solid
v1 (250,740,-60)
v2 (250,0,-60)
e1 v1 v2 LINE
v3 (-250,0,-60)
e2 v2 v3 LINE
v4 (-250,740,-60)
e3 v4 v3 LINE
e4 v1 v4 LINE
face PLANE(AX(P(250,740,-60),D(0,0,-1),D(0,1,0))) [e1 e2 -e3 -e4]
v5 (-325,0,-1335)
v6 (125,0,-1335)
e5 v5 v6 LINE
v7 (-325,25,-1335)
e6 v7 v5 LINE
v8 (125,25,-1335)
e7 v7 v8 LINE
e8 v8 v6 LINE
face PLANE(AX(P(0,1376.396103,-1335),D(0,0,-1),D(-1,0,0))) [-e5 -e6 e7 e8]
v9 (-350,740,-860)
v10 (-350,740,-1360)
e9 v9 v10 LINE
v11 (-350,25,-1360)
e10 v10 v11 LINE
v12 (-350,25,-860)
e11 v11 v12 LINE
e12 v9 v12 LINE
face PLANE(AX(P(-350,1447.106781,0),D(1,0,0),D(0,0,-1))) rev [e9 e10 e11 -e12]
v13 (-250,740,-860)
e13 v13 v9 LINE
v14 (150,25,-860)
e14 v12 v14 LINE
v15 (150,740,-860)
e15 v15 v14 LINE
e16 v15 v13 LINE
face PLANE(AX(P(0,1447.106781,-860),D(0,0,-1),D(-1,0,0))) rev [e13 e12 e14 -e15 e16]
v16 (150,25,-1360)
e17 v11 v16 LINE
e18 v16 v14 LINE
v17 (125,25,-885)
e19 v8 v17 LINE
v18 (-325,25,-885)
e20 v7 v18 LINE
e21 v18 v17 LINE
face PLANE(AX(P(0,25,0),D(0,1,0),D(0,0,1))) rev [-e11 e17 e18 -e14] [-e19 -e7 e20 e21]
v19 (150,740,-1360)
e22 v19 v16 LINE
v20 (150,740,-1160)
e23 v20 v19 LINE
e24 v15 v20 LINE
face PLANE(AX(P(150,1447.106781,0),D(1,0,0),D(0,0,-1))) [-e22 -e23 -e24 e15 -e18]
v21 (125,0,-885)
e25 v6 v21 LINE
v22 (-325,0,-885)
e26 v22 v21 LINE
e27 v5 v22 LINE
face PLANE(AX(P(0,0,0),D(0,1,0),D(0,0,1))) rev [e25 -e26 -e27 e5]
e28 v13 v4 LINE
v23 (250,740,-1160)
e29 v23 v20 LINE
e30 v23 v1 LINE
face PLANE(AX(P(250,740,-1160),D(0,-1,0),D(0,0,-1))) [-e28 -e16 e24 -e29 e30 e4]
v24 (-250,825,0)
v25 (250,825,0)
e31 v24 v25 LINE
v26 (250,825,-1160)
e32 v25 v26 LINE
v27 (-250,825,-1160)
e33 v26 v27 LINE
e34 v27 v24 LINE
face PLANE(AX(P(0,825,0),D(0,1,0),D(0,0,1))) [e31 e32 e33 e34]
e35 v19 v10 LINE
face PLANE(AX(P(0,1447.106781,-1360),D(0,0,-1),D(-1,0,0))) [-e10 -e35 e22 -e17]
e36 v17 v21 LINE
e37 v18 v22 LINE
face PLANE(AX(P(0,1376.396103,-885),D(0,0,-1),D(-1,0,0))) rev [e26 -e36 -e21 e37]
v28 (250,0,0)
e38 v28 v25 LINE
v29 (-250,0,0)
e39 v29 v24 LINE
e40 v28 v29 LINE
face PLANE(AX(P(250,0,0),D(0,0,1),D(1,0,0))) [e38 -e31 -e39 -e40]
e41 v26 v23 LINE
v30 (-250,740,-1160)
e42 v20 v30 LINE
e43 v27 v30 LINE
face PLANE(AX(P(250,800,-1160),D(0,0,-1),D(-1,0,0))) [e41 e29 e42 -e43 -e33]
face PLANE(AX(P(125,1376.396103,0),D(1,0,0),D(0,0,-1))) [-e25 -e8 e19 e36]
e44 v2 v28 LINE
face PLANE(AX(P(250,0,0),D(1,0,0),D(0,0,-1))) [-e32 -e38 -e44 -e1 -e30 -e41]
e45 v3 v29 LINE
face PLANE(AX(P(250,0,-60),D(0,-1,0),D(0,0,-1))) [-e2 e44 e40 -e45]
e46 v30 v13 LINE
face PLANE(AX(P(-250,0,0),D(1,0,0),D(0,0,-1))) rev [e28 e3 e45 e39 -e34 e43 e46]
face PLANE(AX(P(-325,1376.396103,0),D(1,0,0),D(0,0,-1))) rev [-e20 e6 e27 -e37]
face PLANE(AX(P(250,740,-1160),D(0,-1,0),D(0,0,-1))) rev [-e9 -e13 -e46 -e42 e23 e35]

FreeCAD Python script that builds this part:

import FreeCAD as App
import Part
import Sketcher
from FreeCAD import Vector


def add_polygon(sketch, points):
    """Adds a closed chain of lines whose ends are joined by coincident constraints."""
    first, n = sketch.GeometryCount, len(points)
    for a, b in zip(points, points[1:] + points[:1]):
        sketch.addGeometry(Part.LineSegment(App.Vector(*a, 0), App.Vector(*b, 0)), False)
    for i in range(n):
        sketch.addConstraint(Sketcher.Constraint("Coincident", first + i, 2, first + (i + 1) % n, 1))

doc = App.newDocument("Part")
body = doc.addObject("PartDesign::Body", "Body")

# Sketch on YZ plane
sketch1 = body.newObject("Sketcher::SketchObject", "Sketch")
sketch1.AttachmentSupport = (doc.getObject("YZ_Plane"), [""])
sketch1.MapMode = "FlatFace"
add_polygon(sketch1, [(800, 0), (0, 0), (0, -60), (740, -60), (740, -1160), (800, -1160)])  # lines 0-5
sketch1.addConstraint(Sketcher.Constraint("Horizontal", 0))
sketch1.addConstraint(Sketcher.Constraint("Vertical", 1))
sketch1.addConstraint(Sketcher.Constraint("Horizontal", 2))
sketch1.addConstraint(Sketcher.Constraint("Vertical", 3))
sketch1.addConstraint(Sketcher.Constraint("Horizontal", 4))
sketch1.addConstraint(Sketcher.Constraint("Vertical", 5))
sketch1.addConstraint(Sketcher.Constraint("Coincident", 0, 2, -1, 1))
sketch1.addConstraint(Sketcher.Constraint("Equal", 4, 1))
sketch1.addConstraint(Sketcher.Constraint("DistanceX", 0, 2, 0, 1, 800.0))
sketch1.addConstraint(Sketcher.Constraint("DistanceX", 2, 1, 2, 2, 740.0))
sketch1.addConstraint(Sketcher.Constraint("DistanceY", 3, 2, 3, 1, 1100.0))
pad1 = body.newObject("PartDesign::Pad", "Pad")
pad1.Profile = sketch1
pad1.Length = 500
pad1.Midplane = True

# Sketch on XZ plane
sketch2 = body.newObject("Sketcher::SketchObject", "Sketch001")
sketch2.AttachmentSupport = (doc.getObject("XZ_Plane"), [""])
sketch2.MapMode = "FlatFace"
add_polygon(sketch2, [(-325, -1335), (-325, -885), (125, -885), (125, -1335)])  # lines 0-3
sketch2.addConstraint(Sketcher.Constraint("Vertical", 0))
sketch2.addConstraint(Sketcher.Constraint("Horizontal", 1))
sketch2.addConstraint(Sketcher.Constraint("Vertical", 2))
sketch2.addConstraint(Sketcher.Constraint("Horizontal", 3))
sketch2.addConstraint(Sketcher.Constraint("Equal", 3, 0))
sketch2.addConstraint(Sketcher.Constraint("DistanceX", 1, 1, 1, 2, 450.0))
sketch2.addConstraint(Sketcher.Constraint("DistanceX", 0, 2, -1, 1, 325.0))
sketch2.addConstraint(Sketcher.Constraint("DistanceY", 0, 2, -1, 1, 885.0))
pad2 = body.newObject("PartDesign::Pad", "Pad001")
pad2.Profile = sketch2
pad2.Length = 740
pad2.Reversed = True

# Sketch on XZ plane
sketch3 = body.newObject("Sketcher::SketchObject", "Sketch002")
sketch3.AttachmentSupport = (doc.getObject("XZ_Plane"), [""])
sketch3.MapMode = "FlatFace"
sketch3.AttachmentOffset = App.Placement(Vector(0, 0, -25), App.Rotation())
add_polygon(sketch3, [(-350, -1360), (-350, -860), (150, -860), (150, -1360)])  # lines 0-3
add_polygon(sketch3, [(125, -885), (-325, -885), (-325, -1335), (125, -1335)])  # lines 4-7
sketch3.addConstraint(Sketcher.Constraint("Vertical", 0))
sketch3.addConstraint(Sketcher.Constraint("Horizontal", 1))
sketch3.addConstraint(Sketcher.Constraint("Vertical", 2))
sketch3.addConstraint(Sketcher.Constraint("Horizontal", 3))
sketch3.addConstraint(Sketcher.Constraint("Horizontal", 4))
sketch3.addConstraint(Sketcher.Constraint("Vertical", 5))
sketch3.addConstraint(Sketcher.Constraint("Horizontal", 6))
sketch3.addConstraint(Sketcher.Constraint("Vertical", 7))
sketch3.addConstraint(Sketcher.Constraint("Equal", 3, 0))
sketch3.addConstraint(Sketcher.Constraint("Equal", 6, 5))
sketch3.addConstraint(Sketcher.Constraint("DistanceX", 1, 1, 1, 2, 500.0))
sketch3.addConstraint(Sketcher.Constraint("DistanceX", 4, 2, 4, 1, 450.0))
sketch3.addConstraint(Sketcher.Constraint("DistanceX", 0, 2, -1, 1, 350.0))
sketch3.addConstraint(Sketcher.Constraint("DistanceY", 0, 2, -1, 1, 860.0))
sketch3.addConstraint(Sketcher.Constraint("DistanceX", 4, 2, -1, 1, 325.0))
sketch3.addConstraint(Sketcher.Constraint("DistanceY", 4, 2, -1, 1, 885.0))
pad3 = body.newObject("PartDesign::Pad", "Pad002")
pad3.Profile = sketch3
pad3.Length = 715
pad3.Reversed = True

# Sketch on XZ plane
sketch4 = body.newObject("Sketcher::SketchObject", "Sketch003")
sketch4.AttachmentSupport = (doc.getObject("XZ_Plane"), [""])
sketch4.MapMode = "FlatFace"
sketch4.AttachmentOffset = App.Placement(Vector(0, 0, -800), App.Rotation())
add_polygon(sketch4, [(-250, -1160), (-250, 0), (250, 0), (250, -1160)])  # lines 0-3
sketch4.addConstraint(Sketcher.Constraint("Vertical", 0))
sketch4.addConstraint(Sketcher.Constraint("Horizontal", 1))
sketch4.addConstraint(Sketcher.Constraint("Vertical", 2))
sketch4.addConstraint(Sketcher.Constraint("Horizontal", 3))
sketch4.addConstraint(Sketcher.Constraint("Symmetric", 0, 2, 1, 2, -1, 1))
sketch4.addConstraint(Sketcher.Constraint("DistanceX", 1, 1, 1, 2, 500.0))
sketch4.addConstraint(Sketcher.Constraint("DistanceY", 0, 1, 0, 2, 1160.0))
pad4 = body.newObject("PartDesign::Pad", "Pad003")
pad4.Profile = sketch4
pad4.Length = 25
pad4.Reversed = True

doc.recompute()
